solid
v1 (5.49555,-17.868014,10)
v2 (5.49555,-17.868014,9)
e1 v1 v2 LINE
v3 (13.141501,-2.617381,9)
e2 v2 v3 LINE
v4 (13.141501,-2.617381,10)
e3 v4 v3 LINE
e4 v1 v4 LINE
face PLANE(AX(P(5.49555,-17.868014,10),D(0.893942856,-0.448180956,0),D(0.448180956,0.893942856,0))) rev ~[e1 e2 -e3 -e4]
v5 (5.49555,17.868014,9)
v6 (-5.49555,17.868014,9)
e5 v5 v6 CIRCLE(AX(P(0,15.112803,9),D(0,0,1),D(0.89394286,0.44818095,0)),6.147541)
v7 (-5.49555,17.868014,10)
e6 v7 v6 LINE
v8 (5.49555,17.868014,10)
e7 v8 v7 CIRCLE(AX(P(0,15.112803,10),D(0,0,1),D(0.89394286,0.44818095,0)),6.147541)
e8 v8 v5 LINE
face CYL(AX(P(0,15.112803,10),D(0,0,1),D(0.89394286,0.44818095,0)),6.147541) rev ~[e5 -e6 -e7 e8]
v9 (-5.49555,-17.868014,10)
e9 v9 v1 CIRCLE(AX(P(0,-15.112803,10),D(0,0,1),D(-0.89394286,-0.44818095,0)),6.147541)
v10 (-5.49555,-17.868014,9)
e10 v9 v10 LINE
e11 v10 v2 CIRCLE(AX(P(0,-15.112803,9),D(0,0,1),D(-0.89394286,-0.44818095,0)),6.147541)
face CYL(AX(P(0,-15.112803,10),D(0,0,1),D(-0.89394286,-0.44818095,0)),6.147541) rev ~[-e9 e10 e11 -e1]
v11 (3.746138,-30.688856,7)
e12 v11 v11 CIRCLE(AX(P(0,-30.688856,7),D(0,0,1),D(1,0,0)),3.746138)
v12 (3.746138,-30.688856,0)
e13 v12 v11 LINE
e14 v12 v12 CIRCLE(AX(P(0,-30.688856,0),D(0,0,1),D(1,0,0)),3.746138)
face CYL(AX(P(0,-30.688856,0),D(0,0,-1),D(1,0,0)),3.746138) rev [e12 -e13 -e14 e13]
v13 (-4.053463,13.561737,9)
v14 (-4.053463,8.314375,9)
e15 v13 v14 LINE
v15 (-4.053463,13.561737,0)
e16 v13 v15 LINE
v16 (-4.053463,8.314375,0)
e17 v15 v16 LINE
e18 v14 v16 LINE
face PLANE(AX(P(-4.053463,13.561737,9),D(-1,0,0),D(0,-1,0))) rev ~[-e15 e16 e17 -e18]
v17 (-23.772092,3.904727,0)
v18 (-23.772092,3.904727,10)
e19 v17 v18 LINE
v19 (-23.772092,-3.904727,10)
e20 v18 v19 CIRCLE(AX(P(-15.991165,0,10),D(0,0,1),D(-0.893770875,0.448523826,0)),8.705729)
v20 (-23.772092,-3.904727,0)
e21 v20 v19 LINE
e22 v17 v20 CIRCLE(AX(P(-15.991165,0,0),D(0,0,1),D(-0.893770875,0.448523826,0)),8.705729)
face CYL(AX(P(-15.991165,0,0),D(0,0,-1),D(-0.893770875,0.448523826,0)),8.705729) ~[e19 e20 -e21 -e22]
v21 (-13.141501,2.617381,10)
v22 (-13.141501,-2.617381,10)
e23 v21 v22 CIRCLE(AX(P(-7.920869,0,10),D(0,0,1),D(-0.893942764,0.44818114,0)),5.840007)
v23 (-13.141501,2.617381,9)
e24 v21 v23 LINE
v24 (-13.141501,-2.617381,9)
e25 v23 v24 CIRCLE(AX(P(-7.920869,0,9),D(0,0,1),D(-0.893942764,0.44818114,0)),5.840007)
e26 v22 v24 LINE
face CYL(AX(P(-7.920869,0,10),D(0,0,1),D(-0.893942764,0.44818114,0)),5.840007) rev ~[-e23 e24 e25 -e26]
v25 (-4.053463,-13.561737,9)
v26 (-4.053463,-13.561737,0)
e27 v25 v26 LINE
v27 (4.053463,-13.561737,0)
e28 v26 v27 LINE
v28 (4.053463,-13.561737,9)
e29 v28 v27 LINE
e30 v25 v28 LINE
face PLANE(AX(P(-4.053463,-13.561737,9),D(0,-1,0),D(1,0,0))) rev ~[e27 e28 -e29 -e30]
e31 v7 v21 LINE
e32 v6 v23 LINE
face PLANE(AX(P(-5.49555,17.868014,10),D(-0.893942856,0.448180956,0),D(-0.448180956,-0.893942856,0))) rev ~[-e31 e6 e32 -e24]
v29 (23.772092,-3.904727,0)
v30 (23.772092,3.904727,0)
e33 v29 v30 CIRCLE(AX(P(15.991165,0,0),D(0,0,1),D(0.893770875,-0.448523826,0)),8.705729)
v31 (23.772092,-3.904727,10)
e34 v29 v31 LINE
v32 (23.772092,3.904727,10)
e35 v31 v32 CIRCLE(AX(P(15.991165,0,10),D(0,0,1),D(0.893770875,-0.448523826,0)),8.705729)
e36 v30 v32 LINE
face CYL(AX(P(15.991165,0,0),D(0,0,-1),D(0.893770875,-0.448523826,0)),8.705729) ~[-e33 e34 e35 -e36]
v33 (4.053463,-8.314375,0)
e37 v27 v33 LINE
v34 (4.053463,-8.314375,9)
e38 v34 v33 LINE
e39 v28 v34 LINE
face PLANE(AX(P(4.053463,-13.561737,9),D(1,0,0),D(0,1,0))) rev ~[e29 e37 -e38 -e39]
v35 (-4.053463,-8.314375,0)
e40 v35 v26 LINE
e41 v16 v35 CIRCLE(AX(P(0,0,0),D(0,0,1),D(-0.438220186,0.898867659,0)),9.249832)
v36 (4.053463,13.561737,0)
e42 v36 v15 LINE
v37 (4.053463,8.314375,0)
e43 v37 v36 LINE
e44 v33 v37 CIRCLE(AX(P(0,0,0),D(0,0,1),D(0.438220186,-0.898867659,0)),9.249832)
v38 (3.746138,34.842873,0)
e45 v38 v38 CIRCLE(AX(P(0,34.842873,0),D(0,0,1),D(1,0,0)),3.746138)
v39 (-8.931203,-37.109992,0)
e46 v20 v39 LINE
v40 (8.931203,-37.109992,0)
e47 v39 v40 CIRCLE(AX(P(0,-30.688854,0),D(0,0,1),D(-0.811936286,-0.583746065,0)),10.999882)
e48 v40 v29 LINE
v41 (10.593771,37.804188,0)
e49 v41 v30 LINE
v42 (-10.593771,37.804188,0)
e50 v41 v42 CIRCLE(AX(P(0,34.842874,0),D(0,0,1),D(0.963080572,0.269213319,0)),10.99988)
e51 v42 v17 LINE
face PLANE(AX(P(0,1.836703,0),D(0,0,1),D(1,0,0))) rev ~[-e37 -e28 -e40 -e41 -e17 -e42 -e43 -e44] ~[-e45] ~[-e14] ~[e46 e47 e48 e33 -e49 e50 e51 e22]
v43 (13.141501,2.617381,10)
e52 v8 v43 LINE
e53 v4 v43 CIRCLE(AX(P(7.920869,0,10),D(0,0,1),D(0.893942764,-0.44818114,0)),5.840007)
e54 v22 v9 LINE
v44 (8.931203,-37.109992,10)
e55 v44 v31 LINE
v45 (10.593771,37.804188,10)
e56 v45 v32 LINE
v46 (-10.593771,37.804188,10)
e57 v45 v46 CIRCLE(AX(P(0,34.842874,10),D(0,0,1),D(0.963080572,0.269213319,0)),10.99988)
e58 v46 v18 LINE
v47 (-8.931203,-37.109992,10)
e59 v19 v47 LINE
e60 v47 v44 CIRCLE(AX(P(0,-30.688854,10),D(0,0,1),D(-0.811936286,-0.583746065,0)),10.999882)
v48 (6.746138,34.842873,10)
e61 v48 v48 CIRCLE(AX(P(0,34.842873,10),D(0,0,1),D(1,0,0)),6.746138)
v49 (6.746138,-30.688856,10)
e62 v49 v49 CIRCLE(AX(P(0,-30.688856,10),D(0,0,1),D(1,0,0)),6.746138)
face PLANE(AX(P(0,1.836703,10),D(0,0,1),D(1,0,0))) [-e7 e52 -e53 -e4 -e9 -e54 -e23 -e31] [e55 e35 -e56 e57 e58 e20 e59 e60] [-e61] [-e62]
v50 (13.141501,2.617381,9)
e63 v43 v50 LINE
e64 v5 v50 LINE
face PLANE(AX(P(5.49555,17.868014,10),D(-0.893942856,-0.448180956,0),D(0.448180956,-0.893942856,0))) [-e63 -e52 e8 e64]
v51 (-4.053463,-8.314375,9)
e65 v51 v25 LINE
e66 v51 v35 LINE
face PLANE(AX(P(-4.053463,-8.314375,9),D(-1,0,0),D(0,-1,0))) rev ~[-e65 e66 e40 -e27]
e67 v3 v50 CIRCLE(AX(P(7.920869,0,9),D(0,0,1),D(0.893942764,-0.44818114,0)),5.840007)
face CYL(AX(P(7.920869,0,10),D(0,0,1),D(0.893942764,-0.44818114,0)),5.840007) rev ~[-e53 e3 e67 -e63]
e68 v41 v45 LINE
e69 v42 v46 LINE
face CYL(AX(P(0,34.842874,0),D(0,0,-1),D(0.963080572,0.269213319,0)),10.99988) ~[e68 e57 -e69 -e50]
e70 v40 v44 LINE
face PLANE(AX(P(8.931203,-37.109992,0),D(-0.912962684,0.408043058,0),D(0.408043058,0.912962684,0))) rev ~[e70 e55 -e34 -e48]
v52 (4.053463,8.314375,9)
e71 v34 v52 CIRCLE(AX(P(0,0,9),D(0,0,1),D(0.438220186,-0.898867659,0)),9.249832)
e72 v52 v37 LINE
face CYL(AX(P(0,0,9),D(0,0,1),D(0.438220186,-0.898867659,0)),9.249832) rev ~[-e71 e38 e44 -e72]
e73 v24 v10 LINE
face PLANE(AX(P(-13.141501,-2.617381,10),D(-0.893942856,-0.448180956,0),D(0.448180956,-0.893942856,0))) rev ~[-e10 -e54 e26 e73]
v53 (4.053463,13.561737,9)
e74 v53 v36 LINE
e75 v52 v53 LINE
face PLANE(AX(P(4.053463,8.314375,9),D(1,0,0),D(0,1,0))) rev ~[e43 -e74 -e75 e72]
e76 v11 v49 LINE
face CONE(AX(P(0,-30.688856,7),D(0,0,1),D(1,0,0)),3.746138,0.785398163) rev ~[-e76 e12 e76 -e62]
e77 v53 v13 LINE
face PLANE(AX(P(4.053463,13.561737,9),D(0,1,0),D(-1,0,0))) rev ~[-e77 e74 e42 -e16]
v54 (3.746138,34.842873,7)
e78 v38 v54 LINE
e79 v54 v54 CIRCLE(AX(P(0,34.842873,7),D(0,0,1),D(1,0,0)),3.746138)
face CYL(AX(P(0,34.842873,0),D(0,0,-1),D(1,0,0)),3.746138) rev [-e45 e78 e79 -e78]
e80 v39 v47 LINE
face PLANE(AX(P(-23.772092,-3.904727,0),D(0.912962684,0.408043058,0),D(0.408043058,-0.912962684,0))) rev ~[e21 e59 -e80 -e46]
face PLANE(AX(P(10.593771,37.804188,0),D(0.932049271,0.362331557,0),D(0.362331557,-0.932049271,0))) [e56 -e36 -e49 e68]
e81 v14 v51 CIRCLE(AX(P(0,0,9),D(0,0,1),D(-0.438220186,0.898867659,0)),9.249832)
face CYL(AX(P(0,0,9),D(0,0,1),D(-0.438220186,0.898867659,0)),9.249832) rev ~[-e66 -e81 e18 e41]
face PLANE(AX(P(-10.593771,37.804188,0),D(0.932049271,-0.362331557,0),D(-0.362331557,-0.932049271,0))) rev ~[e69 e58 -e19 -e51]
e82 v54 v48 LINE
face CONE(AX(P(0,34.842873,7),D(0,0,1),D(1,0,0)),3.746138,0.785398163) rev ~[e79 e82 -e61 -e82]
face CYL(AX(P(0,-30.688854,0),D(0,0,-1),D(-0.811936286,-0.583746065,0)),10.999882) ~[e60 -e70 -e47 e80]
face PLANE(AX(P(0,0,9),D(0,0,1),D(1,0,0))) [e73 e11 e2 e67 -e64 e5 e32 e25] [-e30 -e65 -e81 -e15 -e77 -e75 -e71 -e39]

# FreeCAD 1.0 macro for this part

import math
import FreeCAD as App
import Part
import Sketcher
Q = App.Units.Quantity


def edges_at(feature, points):
    """Names of the edges that pass closest to the given points."""
    edges = feature.Shape.Edges
    near = lambda p: min(range(len(edges)), key=lambda i: edges[i].distToShape(Part.Vertex(*p))[0])
    return sorted({f"Edge{near(p) + 1}" for p in points})

doc = App.newDocument("Part")
params = doc.addObject("Spreadsheet::Sheet", "Params")
for row, (alias, value) in enumerate([
    ("pad1_length", "10 mm"),
    ("chamfer_size", "3 mm"),
    ("pocket1_length", "1 mm"),
], start=1):
    params.set(f"A{row}", alias)
    params.set(f"B{row}", "=" + value)
    params.setAlias(f"B{row}", alias)

body = doc.addObject("PartDesign::Body", "Body")

# Sketch on XY plane
sketch1 = body.newObject("Sketcher::SketchObject", "Sketch")
sketch1.AttachmentSupport = (doc.getObject("XY_Plane"), [""])
sketch1.MapMode = "FlatFace"
sketch1.addGeometry([
    Part.ArcOfCircle(Part.Circle(App.Vector(-16, 0, 0), App.Vector(0, 0, 1), 8.7), math.radians(153), math.radians(207)),  # 0
    Part.LineSegment(App.Vector(-23.8, -3.9, 0), App.Vector(-8.9, -37.1, 0)),  # 1
    Part.ArcOfCircle(Part.Circle(App.Vector(0, -30.7, 0), App.Vector(0, 0, 1), 11), math.radians(-144), math.radians(-36)),  # 2
    Part.LineSegment(App.Vector(8.9, -37.1, 0), App.Vector(23.8, -3.9, 0)),  # 3
    Part.ArcOfCircle(Part.Circle(App.Vector(16, 0, 0), App.Vector(0, 0, 1), 8.7), math.radians(-27), math.radians(27)),  # 4
    Part.LineSegment(App.Vector(23.8, 3.9, 0), App.Vector(10.6, 37.8, 0)),  # 5
    Part.ArcOfCircle(Part.Circle(App.Vector(0, 34.8, 0), App.Vector(0, 0, 1), 11), math.radians(16), math.radians(164)),  # 6
    Part.LineSegment(App.Vector(-10.6, 37.8, 0), App.Vector(-23.8, 3.9, 0)),  # 7
    Part.Circle(App.Vector(0, -30.7, 0), App.Vector(0, 0, 1), 3.7),  # 8
    Part.Circle(App.Vector(0, 34.8, 0), App.Vector(0, 0, 1), 3.7),  # 9
], False)
sketch1.addConstraint([
    Sketcher.Constraint("Coincident", 0, 2, 1, 1),
    Sketcher.Constraint("Coincident", 1, 2, 2, 1),
    Sketcher.Constraint("Coincident", 2, 2, 3, 1),
    Sketcher.Constraint("Coincident", 3, 2, 4, 1),
    Sketcher.Constraint("Coincident", 4, 2, 5, 1),
    Sketcher.Constraint("Coincident", 5, 2, 6, 1),
    Sketcher.Constraint("Coincident", 6, 2, 7, 1),
    Sketcher.Constraint("Coincident", 7, 2, 0, 1),
    Sketcher.Constraint("Coincident", 8, 3, 2, 3),
    Sketcher.Constraint("Coincident", 9, 3, 6, 3),
    Sketcher.Constraint("Equal", 0, 4),
    Sketcher.Constraint("Equal", 2, 6),
    Sketcher.Constraint("Equal", 8, 9),
    Sketcher.Constraint("Symmetric", 0, 3, 4, 3, -1, 1),
    Sketcher.Constraint("Symmetric", 1, 2, 2, 2, -2),
    Sketcher.Constraint("Symmetric", 0, 2, 3, 2, -2),
    Sketcher.Constraint("Symmetric", 5, 2, 6, 2, -2),
    Sketcher.Constraint("Horizontal", 4, 2, 7, 2),
    Sketcher.Constraint("Vertical", 3, 2, 4, 2),
    Sketcher.Constraint("Equal", 3, 5),
    Sketcher.Constraint("Radius", 0, Q("8.705729 mm")),
    Sketcher.Constraint("Radius", 2, Q("10.999882 mm")),
    Sketcher.Constraint("Diameter", 8, Q("7.492276 mm")),
    Sketcher.Constraint("DistanceY", 0, 2, 9, 3, Q("38.7476 mm")),
    Sketcher.Constraint("Distance", 1, Q("36.37089 mm")),
    Sketcher.Constraint("DistanceY", 1, 2, -1, 1, Q("37.109992 mm")),
    Sketcher.Constraint("DistanceX", -1, 1, 5, 2, Q("10.593771 mm")),
    Sketcher.Constraint("DistanceY", -1, 1, 5, 2, Q("37.804188 mm")),
])
pad1 = body.newObject("PartDesign::Pad", "Pad")
pad1.Profile = sketch1
pad1.setExpression("Length", "Params.pad1_length")
doc.recompute()

chamfer = body.newObject("PartDesign::Chamfer", "Chamfer")
chamfer.Base = (pad1, edges_at(pad1, [(-3.746, 34.843, 10), (-3.746, -30.689, 10)]))
chamfer.setExpression("Size", "Params.chamfer_size")

# Sketch on XY plane
sketch2 = body.newObject("Sketcher::SketchObject", "Sketch001")
sketch2.AttachmentSupport = (doc.getObject("XY_Plane"), [""])
sketch2.MapMode = "FlatFace"
sketch2.AttachmentOffset = App.Placement(App.Vector(0, 0, 10), App.Rotation())
sketch2.addGeometry([
    Part.ArcOfCircle(Part.Circle(App.Vector(0, 15, 0), App.Vector(0, 0, 1), 6), math.radians(27), math.radians(153)),  # 0
    Part.LineSegment(App.Vector(-5, 18, 0), App.Vector(-13, 3, 0)),  # 1
    Part.ArcOfCircle(Part.Circle(App.Vector(-8, 0, 0), App.Vector(0, 0, 1), 6), math.radians(153), math.radians(207)),  # 2
    Part.LineSegment(App.Vector(-13, -3, 0), App.Vector(-5, -18, 0)),  # 3
    Part.ArcOfCircle(Part.Circle(App.Vector(0, -15, 0), App.Vector(0, 0, 1), 6), math.radians(-153), math.radians(-27)),  # 4
    Part.LineSegment(App.Vector(5, -18, 0), App.Vector(13, -3, 0)),  # 5
    Part.ArcOfCircle(Part.Circle(App.Vector(8, 0, 0), App.Vector(0, 0, 1), 6), math.radians(-27), math.radians(27)),  # 6
    Part.LineSegment(App.Vector(13, 3, 0), App.Vector(5, 18, 0)),  # 7
], False)
sketch2.addConstraint([
    Sketcher.Constraint("Tangent", 0, 2, 1, 1),
    Sketcher.Constraint("Tangent", 1, 2, 2, 1),
    Sketcher.Constraint("Tangent", 2, 2, 3, 1),
    Sketcher.Constraint("Tangent", 3, 2, 4, 1),
    Sketcher.Constraint("Tangent", 4, 2, 5, 1),
    Sketcher.Constraint("Tangent", 5, 2, 6, 1),
    Sketcher.Constraint("Tangent", 6, 2, 7, 1),
    Sketcher.Constraint("Tangent", 7, 2, 0, 1),
    Sketcher.Constraint("Equal", 0, 4),
    Sketcher.Constraint("Equal", 2, 6),
    Sketcher.Constraint("Symmetric", 0, 3, 4, 3, -1, 1),
    Sketcher.Constraint("Symmetric", 2, 3, 6, 3, -1, 1),
    Sketcher.Constraint("Symmetric", 3, 2, 4, 2, -2),
    Sketcher.Constraint("Radius", 0, Q("6.147541 mm")),
    Sketcher.Constraint("Radius", 2, Q("5.840007 mm")),
    Sketcher.Constraint("DistanceX", 1, 2, -1, 1, Q("13.141501 mm")),
    Sketcher.Constraint("DistanceX", 3, 2, 4, 2, Q("10.9911 mm")),
])
pocket1 = body.newObject("PartDesign::Pocket", "Pocket")
pocket1.Profile = sketch2
pocket1.setExpression("Length", "Params.pocket1_length")

# Sketch on XY plane
sketch3 = body.newObject("Sketcher::SketchObject", "Sketch002")
sketch3.AttachmentSupport = (doc.getObject("XY_Plane"), [""])
sketch3.MapMode = "FlatFace"
sketch3.AttachmentOffset = App.Placement(App.Vector(0, 0, 9), App.Rotation())
sketch3.addGeometry([
    Part.ArcOfCircle(Part.Circle(App.Vector(0, 0, 0), App.Vector(0, 0, 1), 9), math.radians(116), math.radians(244)),  # 0
    Part.LineSegment(App.Vector(-4, -8, 0), App.Vector(-4, -14, 0)),  # 1
    Part.LineSegment(App.Vector(-4, -14, 0), App.Vector(4, -14, 0)),  # 2
    Part.LineSegment(App.Vector(4, -14, 0), App.Vector(4, -8, 0)),  # 3
    Part.ArcOfCircle(Part.Circle(App.Vector(0, 0, 0), App.Vector(0, 0, 1), 9), math.radians(-64), math.radians(64)),  # 4
    Part.LineSegment(App.Vector(4, 8, 0), App.Vector(4, 14, 0)),  # 5
    Part.LineSegment(App.Vector(4, 14, 0), App.Vector(-4, 14, 0)),  # 6
    Part.LineSegment(App.Vector(-4, 14, 0), App.Vector(-4, 8, 0)),  # 7
], False)
sketch3.addConstraint([
    Sketcher.Constraint("Coincident", 0, 2, 1, 1),
    Sketcher.Constraint("Coincident", 1, 2, 2, 1),
    Sketcher.Constraint("Coincident", 2, 2, 3, 1),
    Sketcher.Constraint("Coincident", 3, 2, 4, 1),
    Sketcher.Constraint("Coincident", 4, 2, 5, 1),
    Sketcher.Constraint("Coincident", 5, 2, 6, 1),
    Sketcher.Constraint("Coincident", 6, 2, 7, 1),
    Sketcher.Constraint("Coincident", 7, 2, 0, 1),
    Sketcher.Constraint("Vertical", 1),
    Sketcher.Constraint("Horizontal", 2),
    Sketcher.Constraint("Vertical", 3),
    Sketcher.Constraint("Vertical", 5),
    Sketcher.Constraint("Horizontal", 6),
    Sketcher.Constraint("Vertical", 7),
    Sketcher.Constraint("Coincident", 0, 3, -1, 1),
    Sketcher.Constraint("Coincident", 4, 3, -1, 1),
    Sketcher.Constraint("Equal", 0, 4),
    Sketcher.Constraint("Symmetric", 1, 2, 5, 2, -1, 1),
    Sketcher.Constraint("Horizontal", 0, 2, 3, 2),
    Sketcher.Constraint("Horizontal", 4, 2, 7, 2),
    Sketcher.Constraint("Radius", 0, Q("9.249832 mm")),
    Sketcher.Constraint("DistanceX", 2, 1, 2, 2, Q("8.106926 mm")),
    Sketcher.Constraint("DistanceY", 1, 2, 1, 1, Q("5.247362 mm")),
])
pocket2 = body.newObject("PartDesign::Pocket", "Pocket001")
pocket2.Profile = sketch3
pocket2.Type = "ThroughAll"

doc.recompute()
